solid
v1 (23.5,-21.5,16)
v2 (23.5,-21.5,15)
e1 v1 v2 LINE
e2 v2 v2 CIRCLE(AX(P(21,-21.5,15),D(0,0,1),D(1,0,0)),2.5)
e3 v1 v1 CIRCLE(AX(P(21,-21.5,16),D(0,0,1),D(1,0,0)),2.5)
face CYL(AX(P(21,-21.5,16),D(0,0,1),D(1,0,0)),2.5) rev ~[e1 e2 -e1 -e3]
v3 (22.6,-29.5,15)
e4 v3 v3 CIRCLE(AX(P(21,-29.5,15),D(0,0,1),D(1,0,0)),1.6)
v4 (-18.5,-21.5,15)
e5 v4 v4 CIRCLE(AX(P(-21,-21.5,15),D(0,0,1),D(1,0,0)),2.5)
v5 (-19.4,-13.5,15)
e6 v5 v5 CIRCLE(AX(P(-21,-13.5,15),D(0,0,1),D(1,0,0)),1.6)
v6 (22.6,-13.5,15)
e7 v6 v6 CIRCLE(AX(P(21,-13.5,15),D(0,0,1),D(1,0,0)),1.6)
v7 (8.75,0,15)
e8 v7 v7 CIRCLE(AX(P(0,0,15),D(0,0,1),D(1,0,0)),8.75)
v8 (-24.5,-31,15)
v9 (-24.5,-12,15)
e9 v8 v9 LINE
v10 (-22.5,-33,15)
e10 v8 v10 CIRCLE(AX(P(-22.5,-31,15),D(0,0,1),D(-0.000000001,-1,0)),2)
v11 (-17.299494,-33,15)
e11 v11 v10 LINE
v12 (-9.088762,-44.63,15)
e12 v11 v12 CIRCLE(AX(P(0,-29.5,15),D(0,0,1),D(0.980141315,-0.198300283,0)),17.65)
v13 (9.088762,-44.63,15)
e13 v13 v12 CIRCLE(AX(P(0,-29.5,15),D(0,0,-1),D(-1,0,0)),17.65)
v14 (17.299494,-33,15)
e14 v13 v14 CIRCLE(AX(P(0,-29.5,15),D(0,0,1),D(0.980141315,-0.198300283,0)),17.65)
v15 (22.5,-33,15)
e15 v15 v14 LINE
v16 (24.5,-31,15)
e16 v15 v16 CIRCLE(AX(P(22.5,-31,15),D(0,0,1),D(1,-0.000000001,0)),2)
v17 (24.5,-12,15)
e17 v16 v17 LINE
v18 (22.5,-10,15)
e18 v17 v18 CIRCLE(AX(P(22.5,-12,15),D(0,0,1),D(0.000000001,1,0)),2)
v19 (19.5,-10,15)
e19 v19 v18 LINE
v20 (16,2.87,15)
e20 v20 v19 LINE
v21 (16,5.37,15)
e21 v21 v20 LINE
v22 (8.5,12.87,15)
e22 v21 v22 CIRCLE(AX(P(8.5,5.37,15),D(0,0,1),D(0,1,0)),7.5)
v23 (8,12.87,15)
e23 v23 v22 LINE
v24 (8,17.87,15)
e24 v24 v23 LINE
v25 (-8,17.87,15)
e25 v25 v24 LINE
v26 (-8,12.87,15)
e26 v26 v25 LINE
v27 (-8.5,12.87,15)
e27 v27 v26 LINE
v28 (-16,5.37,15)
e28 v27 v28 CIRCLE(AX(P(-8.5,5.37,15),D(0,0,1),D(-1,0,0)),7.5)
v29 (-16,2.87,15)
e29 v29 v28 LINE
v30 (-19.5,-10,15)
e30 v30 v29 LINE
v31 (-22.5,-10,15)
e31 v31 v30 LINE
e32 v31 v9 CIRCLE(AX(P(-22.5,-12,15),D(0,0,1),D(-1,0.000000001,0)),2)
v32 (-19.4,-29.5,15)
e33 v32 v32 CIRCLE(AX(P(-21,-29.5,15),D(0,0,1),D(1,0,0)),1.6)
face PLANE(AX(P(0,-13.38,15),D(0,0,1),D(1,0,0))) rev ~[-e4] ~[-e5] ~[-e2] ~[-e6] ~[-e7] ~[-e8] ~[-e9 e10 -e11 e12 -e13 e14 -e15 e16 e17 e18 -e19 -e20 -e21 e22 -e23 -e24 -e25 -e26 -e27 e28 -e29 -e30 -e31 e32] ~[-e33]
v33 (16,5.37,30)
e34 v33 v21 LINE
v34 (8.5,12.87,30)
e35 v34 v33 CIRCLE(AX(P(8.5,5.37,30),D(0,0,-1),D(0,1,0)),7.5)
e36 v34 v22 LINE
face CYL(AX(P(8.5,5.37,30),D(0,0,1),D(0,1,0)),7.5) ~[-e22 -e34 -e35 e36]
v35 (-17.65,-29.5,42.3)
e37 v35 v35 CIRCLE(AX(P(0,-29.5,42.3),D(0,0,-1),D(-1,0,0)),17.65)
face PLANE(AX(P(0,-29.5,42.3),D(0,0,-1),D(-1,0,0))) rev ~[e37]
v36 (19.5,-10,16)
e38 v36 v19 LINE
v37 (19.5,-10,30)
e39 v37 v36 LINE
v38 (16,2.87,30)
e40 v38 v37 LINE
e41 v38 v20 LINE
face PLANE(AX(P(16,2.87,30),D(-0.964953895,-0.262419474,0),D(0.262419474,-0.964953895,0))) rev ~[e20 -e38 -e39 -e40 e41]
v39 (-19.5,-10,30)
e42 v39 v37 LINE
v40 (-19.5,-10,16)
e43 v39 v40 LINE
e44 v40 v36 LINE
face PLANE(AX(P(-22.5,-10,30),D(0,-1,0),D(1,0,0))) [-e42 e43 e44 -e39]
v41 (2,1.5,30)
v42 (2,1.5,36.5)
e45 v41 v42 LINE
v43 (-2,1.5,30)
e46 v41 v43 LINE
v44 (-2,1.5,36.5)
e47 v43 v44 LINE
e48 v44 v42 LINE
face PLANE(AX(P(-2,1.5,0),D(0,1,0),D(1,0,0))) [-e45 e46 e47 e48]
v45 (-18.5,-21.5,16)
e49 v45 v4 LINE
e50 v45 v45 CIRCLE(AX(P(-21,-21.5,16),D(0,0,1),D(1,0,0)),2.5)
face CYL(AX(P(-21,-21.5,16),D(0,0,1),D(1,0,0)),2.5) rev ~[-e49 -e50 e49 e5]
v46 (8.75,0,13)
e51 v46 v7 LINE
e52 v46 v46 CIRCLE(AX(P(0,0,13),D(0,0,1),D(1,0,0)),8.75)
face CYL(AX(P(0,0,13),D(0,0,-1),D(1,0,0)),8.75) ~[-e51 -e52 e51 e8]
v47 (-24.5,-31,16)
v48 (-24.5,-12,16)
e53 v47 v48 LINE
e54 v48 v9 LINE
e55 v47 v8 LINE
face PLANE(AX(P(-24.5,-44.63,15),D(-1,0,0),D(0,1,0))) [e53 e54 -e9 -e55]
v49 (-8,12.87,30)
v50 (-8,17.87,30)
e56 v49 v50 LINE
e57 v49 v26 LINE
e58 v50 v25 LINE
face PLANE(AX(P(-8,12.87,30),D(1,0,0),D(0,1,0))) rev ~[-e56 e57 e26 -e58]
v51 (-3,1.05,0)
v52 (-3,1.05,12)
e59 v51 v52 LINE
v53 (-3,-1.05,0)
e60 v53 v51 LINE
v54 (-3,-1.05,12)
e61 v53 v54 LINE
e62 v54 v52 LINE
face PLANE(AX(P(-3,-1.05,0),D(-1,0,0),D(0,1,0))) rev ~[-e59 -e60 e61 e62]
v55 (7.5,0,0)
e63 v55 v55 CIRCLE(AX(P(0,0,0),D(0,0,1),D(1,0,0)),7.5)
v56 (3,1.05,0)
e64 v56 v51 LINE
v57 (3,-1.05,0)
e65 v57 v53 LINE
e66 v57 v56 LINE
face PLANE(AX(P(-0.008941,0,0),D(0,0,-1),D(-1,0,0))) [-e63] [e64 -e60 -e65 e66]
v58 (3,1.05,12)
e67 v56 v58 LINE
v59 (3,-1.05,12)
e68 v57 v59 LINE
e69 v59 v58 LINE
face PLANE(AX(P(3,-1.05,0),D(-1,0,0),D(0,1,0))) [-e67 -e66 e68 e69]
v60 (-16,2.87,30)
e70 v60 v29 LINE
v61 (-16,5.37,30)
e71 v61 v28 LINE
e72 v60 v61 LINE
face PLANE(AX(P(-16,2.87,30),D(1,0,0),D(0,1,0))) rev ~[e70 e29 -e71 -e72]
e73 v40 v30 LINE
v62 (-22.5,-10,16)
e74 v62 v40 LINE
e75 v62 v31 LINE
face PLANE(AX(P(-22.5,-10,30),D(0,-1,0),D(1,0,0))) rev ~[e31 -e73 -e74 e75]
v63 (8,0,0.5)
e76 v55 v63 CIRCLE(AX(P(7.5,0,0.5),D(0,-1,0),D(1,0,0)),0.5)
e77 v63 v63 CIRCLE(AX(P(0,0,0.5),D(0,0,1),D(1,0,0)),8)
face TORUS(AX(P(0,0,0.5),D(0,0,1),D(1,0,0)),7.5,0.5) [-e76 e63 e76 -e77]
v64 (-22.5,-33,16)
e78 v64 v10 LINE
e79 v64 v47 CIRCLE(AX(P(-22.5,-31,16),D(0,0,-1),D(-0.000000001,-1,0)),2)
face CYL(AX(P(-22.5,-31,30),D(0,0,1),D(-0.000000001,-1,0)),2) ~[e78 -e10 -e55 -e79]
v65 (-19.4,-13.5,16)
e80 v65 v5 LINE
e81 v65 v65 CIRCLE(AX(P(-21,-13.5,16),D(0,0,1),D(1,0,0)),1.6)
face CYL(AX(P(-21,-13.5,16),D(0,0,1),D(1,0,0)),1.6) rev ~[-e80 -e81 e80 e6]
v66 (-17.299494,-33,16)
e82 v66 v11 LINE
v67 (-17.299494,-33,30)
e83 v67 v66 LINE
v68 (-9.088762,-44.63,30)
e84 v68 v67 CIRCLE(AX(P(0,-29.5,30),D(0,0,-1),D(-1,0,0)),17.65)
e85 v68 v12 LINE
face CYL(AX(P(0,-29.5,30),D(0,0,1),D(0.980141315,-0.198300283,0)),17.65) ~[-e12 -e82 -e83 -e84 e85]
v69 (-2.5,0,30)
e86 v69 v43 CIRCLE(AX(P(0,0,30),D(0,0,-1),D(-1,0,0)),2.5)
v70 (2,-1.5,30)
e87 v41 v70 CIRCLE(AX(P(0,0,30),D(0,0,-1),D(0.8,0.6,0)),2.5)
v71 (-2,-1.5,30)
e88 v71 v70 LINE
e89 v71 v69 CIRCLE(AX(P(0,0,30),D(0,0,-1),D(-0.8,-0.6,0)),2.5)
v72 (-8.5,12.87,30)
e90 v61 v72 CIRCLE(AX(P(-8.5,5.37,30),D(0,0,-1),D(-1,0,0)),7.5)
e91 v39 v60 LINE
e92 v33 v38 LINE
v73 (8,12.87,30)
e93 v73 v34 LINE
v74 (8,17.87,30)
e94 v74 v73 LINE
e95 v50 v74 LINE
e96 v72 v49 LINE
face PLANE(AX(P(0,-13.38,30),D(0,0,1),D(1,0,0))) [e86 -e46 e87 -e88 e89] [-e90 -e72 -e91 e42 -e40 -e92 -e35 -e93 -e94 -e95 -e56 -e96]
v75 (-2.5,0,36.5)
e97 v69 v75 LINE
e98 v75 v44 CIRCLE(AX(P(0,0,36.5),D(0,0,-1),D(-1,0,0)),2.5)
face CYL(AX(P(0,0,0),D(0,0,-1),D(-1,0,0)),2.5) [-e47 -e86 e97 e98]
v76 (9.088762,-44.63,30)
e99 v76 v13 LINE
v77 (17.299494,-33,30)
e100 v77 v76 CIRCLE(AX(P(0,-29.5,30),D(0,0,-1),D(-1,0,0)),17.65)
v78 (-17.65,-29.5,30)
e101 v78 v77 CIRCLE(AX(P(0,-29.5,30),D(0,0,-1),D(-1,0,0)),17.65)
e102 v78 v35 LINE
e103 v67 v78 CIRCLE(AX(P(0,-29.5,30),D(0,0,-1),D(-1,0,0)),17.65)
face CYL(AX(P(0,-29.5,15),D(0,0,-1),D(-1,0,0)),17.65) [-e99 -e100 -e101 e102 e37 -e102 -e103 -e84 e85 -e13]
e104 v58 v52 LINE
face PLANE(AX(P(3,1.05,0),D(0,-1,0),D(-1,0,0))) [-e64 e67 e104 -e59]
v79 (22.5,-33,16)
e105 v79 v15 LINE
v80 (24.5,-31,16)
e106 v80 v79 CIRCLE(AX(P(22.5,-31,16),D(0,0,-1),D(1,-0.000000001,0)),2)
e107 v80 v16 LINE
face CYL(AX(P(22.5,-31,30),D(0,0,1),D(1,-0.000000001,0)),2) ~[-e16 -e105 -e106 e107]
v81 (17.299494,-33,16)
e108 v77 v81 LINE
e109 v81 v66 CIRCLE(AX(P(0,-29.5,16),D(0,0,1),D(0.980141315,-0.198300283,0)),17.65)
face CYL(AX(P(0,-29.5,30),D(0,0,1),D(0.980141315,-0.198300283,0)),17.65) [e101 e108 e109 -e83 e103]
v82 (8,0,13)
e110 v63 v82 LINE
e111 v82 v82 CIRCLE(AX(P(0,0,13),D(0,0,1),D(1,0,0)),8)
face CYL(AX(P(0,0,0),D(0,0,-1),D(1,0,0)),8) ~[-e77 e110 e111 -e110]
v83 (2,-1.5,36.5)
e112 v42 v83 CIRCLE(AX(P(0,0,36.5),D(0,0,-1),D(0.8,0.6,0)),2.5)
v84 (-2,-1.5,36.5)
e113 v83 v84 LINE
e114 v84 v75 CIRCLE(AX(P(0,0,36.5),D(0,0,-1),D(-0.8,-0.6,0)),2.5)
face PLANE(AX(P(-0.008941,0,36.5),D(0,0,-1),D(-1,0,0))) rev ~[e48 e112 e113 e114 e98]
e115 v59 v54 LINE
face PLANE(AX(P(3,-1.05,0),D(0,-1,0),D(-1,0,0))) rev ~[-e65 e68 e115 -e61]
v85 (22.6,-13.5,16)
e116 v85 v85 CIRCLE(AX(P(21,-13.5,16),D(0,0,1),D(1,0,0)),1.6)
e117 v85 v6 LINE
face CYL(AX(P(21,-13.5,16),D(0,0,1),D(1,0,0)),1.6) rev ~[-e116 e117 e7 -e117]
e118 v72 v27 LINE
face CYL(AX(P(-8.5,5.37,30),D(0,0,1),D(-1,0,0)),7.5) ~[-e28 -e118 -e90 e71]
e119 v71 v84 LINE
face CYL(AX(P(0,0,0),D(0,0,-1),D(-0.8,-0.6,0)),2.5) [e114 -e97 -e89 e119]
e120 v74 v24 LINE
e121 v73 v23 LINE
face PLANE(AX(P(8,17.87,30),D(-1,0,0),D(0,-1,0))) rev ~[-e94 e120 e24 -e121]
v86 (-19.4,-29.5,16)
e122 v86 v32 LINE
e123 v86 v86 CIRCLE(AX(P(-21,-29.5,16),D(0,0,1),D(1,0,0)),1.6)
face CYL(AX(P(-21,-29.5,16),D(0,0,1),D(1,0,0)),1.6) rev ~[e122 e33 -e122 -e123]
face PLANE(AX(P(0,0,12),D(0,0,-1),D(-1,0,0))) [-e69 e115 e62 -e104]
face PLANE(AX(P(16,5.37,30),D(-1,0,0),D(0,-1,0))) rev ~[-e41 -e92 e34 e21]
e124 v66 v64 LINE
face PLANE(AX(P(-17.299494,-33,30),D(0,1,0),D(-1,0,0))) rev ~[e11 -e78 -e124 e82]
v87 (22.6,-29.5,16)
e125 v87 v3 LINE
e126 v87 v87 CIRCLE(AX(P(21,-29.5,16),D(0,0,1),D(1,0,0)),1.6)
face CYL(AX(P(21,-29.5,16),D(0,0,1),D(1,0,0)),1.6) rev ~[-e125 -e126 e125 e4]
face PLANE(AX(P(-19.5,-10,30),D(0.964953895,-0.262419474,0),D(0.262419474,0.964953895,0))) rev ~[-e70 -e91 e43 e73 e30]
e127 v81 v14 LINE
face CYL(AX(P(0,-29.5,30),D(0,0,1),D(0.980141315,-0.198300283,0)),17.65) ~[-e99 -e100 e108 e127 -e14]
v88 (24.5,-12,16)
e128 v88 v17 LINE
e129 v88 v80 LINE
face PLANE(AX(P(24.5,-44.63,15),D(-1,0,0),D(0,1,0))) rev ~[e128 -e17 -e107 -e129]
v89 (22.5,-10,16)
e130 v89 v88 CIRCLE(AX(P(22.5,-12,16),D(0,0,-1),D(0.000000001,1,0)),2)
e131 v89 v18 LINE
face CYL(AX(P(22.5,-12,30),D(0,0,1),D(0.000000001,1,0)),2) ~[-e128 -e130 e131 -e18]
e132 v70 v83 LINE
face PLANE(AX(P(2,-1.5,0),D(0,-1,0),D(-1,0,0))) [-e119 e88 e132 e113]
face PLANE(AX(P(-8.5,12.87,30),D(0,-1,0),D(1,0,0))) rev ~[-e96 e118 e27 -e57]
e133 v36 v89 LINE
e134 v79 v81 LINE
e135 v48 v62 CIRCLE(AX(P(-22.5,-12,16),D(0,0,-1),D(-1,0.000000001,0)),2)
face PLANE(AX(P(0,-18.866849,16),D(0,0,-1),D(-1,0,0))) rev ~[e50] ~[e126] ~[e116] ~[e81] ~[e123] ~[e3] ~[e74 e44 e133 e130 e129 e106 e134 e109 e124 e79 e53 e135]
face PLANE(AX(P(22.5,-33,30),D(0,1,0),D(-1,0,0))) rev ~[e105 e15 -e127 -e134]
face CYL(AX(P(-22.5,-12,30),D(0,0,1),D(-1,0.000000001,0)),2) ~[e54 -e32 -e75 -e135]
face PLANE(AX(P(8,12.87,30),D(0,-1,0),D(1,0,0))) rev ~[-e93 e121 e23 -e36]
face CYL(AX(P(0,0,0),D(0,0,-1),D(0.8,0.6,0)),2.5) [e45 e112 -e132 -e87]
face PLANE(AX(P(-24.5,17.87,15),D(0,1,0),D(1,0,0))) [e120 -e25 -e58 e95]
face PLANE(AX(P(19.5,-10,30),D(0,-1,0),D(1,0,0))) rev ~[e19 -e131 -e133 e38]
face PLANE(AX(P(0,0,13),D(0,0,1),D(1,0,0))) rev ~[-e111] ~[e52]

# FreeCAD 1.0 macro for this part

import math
import FreeCAD as App
import Part
import Sketcher
from FreeCAD import Vector


def edges_at(feature, points):
    """Names of the edges that pass closest to the given points."""
    edges = feature.Shape.Edges
    near = lambda p: min(range(len(edges)), key=lambda i: edges[i].distToShape(Part.Vertex(*p))[0])
    return sorted({f"Edge{near(p) + 1}" for p in points})

doc = App.newDocument("Part")
params = doc.addObject("Spreadsheet::Sheet", "Params")
for row, (alias, value) in enumerate([
    ("sketch1_diameter", "16 mm"),
    ("pad1_length", "13 mm"),
    ("sketch2_diameter", "17.5 mm"),
    ("pad2_length", "2 mm"),
    ("sketch3_width", "49 mm"),
    ("sketch3_height", "62.5 mm"),
    ("pad3_length", "15 mm"),
    ("sketch4_diameter", "35.3 mm"),
    ("pad4_length", "27.3 mm"),
    ("sketch5_radius", "2.5 mm"),
    ("sketch5_width", "4 mm"),
    ("pad5_length", "36.5 mm"),
    ("sketch6_radius", "2 mm"),
    ("sketch6_radius2", "7.5 mm"),
    ("sketch6_width", "16 mm"),
    ("sketch6_width2", "3 mm"),
    ("sketch6_height", "5 mm"),
    ("sketch7_radius", "2 mm"),
    ("sketch7_width", "45 mm"),
    ("sketch7_height", "19 mm"),
    ("sketch7_radius2", "17.65 mm"),
    ("pocket2_length", "14 mm"),
    ("sketch8_diameter", "5 mm"),
    ("sketch9_diameter", "3.2 mm"),
    ("fillet_radius", "0.5 mm"),
    ("sketch10_width", "6 mm"),
    ("sketch10_height", "2.1 mm"),
    ("pocket5_length", "12 mm"),
], start=1):
    params.set(f"A{row}", alias)
    params.set(f"B{row}", "=" + value)
    params.setAlias(f"B{row}", alias)

body = doc.addObject("PartDesign::Body", "Body")

# Sketch on XY plane
sketch1 = doc.addObject("Sketcher::SketchObject", "Sketch")
body.addObject(sketch1)
sketch1.AttachmentSupport = (doc.XY_Plane, [""])
sketch1.MapMode = "FlatFace"
sketch1.addGeometry(Part.Circle(Vector(0, 0, 0), Vector(0, 0, 1), 8), False)
sketch1.addConstraint(Sketcher.Constraint("Coincident", 0, 3, -1, 1))
sketch1.addConstraint(Sketcher.Constraint("Diameter", 0, 16.0))
sketch1.setExpression("Constraints[1]", "Params.sketch1_diameter")
pad1 = doc.addObject("PartDesign::Pad", "Pad")
body.addObject(pad1)
pad1.Profile = sketch1
pad1.setExpression("Length", "Params.pad1_length")

# Sketch on XY plane
sketch2 = doc.addObject("Sketcher::SketchObject", "Sketch001")
body.addObject(sketch2)
sketch2.AttachmentSupport = (doc.XY_Plane, [""])
sketch2.MapMode = "FlatFace"
sketch2.AttachmentOffset = App.Placement(Vector(0, 0, 13), App.Rotation())
sketch2.addGeometry(Part.Circle(Vector(0, 0, 0), Vector(0, 0, 1), 8.75), False)
sketch2.addConstraint(Sketcher.Constraint("Coincident", 0, 3, -1, 1))
sketch2.addConstraint(Sketcher.Constraint("Diameter", 0, 17.5))
sketch2.setExpression("Constraints[1]", "Params.sketch2_diameter")
pad2 = doc.addObject("PartDesign::Pad", "Pad001")
body.addObject(pad2)
pad2.Profile = sketch2
pad2.setExpression("Length", "Params.pad2_length")

# Sketch on XY plane
sketch3 = doc.addObject("Sketcher::SketchObject", "Sketch002")
body.addObject(sketch3)
sketch3.AttachmentSupport = (doc.XY_Plane, [""])
sketch3.MapMode = "FlatFace"
sketch3.AttachmentOffset = App.Placement(Vector(0, 0, 15), App.Rotation())
sketch3.addGeometry(Part.LineSegment(Vector(-24.5, 17.87, 0), Vector(-24.5, -44.63, 0)), False)
sketch3.addGeometry(Part.LineSegment(Vector(-24.5, -44.63, 0), Vector(24.5, -44.63, 0)), False)
sketch3.addGeometry(Part.LineSegment(Vector(24.5, -44.63, 0), Vector(24.5, 17.87, 0)), False)
sketch3.addGeometry(Part.LineSegment(Vector(24.5, 17.87, 0), Vector(-24.5, 17.87, 0)), False)
sketch3.addConstraint(Sketcher.Constraint("Coincident", 0, 2, 1, 1))
sketch3.addConstraint(Sketcher.Constraint("Coincident", 1, 2, 2, 1))
sketch3.addConstraint(Sketcher.Constraint("Coincident", 2, 2, 3, 1))
sketch3.addConstraint(Sketcher.Constraint("Coincident", 3, 2, 0, 1))
sketch3.addConstraint(Sketcher.Constraint("Vertical", 0))
sketch3.addConstraint(Sketcher.Constraint("Horizontal", 1))
sketch3.addConstraint(Sketcher.Constraint("Vertical", 2))
sketch3.addConstraint(Sketcher.Constraint("Horizontal", 3))
sketch3.addConstraint(Sketcher.Constraint("DistanceX", 1, 1, 1, 2, 49.0))
sketch3.addConstraint(Sketcher.Constraint("DistanceY", 0, 2, 0, 1, 62.5))
sketch3.addConstraint(Sketcher.Constraint("DistanceX", 0, 2, -1, 1, 24.5))
sketch3.addConstraint(Sketcher.Constraint("DistanceY", 0, 2, -1, 1, 44.63))
sketch3.setExpression("Constraints[8]", "Params.sketch3_width")
sketch3.setExpression("Constraints[9]", "Params.sketch3_height")
pad3 = doc.addObject("PartDesign::Pad", "Pad002")
body.addObject(pad3)
pad3.Profile = sketch3
pad3.setExpression("Length", "Params.pad3_length")

# Sketch on XY plane
sketch4 = doc.addObject("Sketcher::SketchObject", "Sketch003")
body.addObject(sketch4)
sketch4.AttachmentSupport = (doc.XY_Plane, [""])
sketch4.MapMode = "FlatFace"
sketch4.AttachmentOffset = App.Placement(Vector(0, 0, 15), App.Rotation())
sketch4.addGeometry(Part.Circle(Vector(0, -29.5, 0), Vector(0, 0, 1), 17.65), False)
sketch4.addConstraint(Sketcher.Constraint("PointOnObject", 0, 3, -2))
sketch4.addConstraint(Sketcher.Constraint("Diameter", 0, 35.3))
sketch4.addConstraint(Sketcher.Constraint("DistanceY", 0, 3, -1, 1, 29.5))
sketch4.setExpression("Constraints[1]", "Params.sketch4_diameter")
pad4 = doc.addObject("PartDesign::Pad", "Pad003")
body.addObject(pad4)
pad4.Profile = sketch4
pad4.setExpression("Length", "Params.pad4_length")

# Sketch on XY plane
sketch5 = doc.addObject("Sketcher::SketchObject", "Sketch004")
body.addObject(sketch5)
sketch5.AttachmentSupport = (doc.XY_Plane, [""])
sketch5.MapMode = "FlatFace"
sketch5.addGeometry(Part.LineSegment(Vector(-2, 1.5, 0), Vector(2, 1.5, 0)), False)
sketch5.addGeometry(Part.ArcOfCircle(Part.Circle(Vector(0, 0, 0), Vector(0, 0, 1), 2.5), math.radians(-36.869898), math.radians(36.869898)), False)
sketch5.addGeometry(Part.LineSegment(Vector(2, -1.5, 0), Vector(-2, -1.5, 0)), False)
sketch5.addGeometry(Part.ArcOfCircle(Part.Circle(Vector(0, 0, 0), Vector(0, 0, 1), 2.5), math.radians(-180), math.radians(-143.130102)), False)
sketch5.addGeometry(Part.ArcOfCircle(Part.Circle(Vector(0, 0, 0), Vector(0, 0, 1), 2.5), math.radians(143.130102), math.radians(180)), False)
sketch5.addConstraint(Sketcher.Constraint("Coincident", 0, 2, 1, 2))
sketch5.addConstraint(Sketcher.Constraint("Coincident", 1, 1, 2, 1))
sketch5.addConstraint(Sketcher.Constraint("Coincident", 2, 2, 3, 2))
sketch5.addConstraint(Sketcher.Constraint("Tangent", 3, 1, 4, 2))
sketch5.addConstraint(Sketcher.Constraint("Coincident", 4, 1, 0, 1))
sketch5.addConstraint(Sketcher.Constraint("Horizontal", 0))
sketch5.addConstraint(Sketcher.Constraint("Horizontal", 2))
sketch5.addConstraint(Sketcher.Constraint("Coincident", 1, 3, -1, 1))
sketch5.addConstraint(Sketcher.Constraint("Coincident", 3, 3, -1, 1))
sketch5.addConstraint(Sketcher.Constraint("Equal", 1, 3))
sketch5.addConstraint(Sketcher.Constraint("Equal", 3, 4))
sketch5.addConstraint(Sketcher.Constraint("PointOnObject", 3, 1, -1))
sketch5.addConstraint(Sketcher.Constraint("Vertical", 0, 2, 1, 1))
sketch5.addConstraint(Sketcher.Constraint("Radius", 1, 2.5))
sketch5.addConstraint(Sketcher.Constraint("DistanceX", 0, 1, 0, 2, 4.0))
sketch5.setExpression("Constraints[13]", "Params.sketch5_radius")
sketch5.setExpression("Constraints[14]", "Params.sketch5_width")
pad5 = doc.addObject("PartDesign::Pad", "Pad004")
body.addObject(pad5)
pad5.Profile = sketch5
pad5.setExpression("Length", "Params.pad5_length")

# Sketch on XY plane
sketch6 = doc.addObject("Sketcher::SketchObject", "Sketch005")
body.addObject(sketch6)
sketch6.AttachmentSupport = (doc.XY_Plane, [""])
sketch6.MapMode = "FlatFace"
sketch6.AttachmentOffset = App.Placement(Vector(0, 0, 30), App.Rotation())
sketch6.addGeometry(Part.LineSegment(Vector(-39.682326, 27.525318, 0), Vector(-39.682326, -54.935197, 0)), False)
sketch6.addGeometry(Part.LineSegment(Vector(-39.682326, -54.935197, 0), Vector(41.428388, -54.935197, 0)), False)
sketch6.addGeometry(Part.LineSegment(Vector(41.428388, -54.935197, 0), Vector(41.428388, 27.525318, 0)), False)
sketch6.addGeometry(Part.LineSegment(Vector(41.428388, 27.525318, 0), Vector(-39.682326, 27.525318, 0)), False)
sketch6.addGeometry(Part.LineSegment(Vector(-8, 12.87, 0), Vector(-8, 17.87, 0)), False)
sketch6.addGeometry(Part.LineSegment(Vector(-8, 17.87, 0), Vector(8, 17.87, 0)), False)
sketch6.addGeometry(Part.LineSegment(Vector(8, 17.87, 0), Vector(8, 12.87, 0)), False)
sketch6.addGeometry(Part.LineSegment(Vector(8, 12.87, 0), Vector(8.5, 12.87, 0)), False)
sketch6.addGeometry(Part.ArcOfCircle(Part.Circle(Vector(8.5, 5.37, 0), Vector(0, 0, 1), 7.5), math.radians(0), math.radians(90)), False)
sketch6.addGeometry(Part.LineSegment(Vector(16, 5.37, 0), Vector(16, 2.87, 0)), False)
sketch6.addGeometry(Part.LineSegment(Vector(16, 2.87, 0), Vector(19.5, -10, 0)), False)
sketch6.addGeometry(Part.LineSegment(Vector(19.5, -10, 0), Vector(22.5, -10, 0)), False)
sketch6.addGeometry(Part.ArcOfCircle(Part.Circle(Vector(22.5, -12, 0), Vector(0, 0, 1), 2), math.radians(0), math.radians(90)), False)
sketch6.addGeometry(Part.LineSegment(Vector(24.5, -12, 0), Vector(24.5, -31, 0)), False)
sketch6.addGeometry(Part.ArcOfCircle(Part.Circle(Vector(22.5, -31, 0), Vector(0, 0, 1), 2), math.radians(-90), math.radians(0)), False)
sketch6.addGeometry(Part.LineSegment(Vector(22.5, -33, 0), Vector(17.299494, -33, 0)), False)
sketch6.addGeometry(Part.ArcOfCircle(Part.Circle(Vector(0, -29.5, 0), Vector(0, 0, 1), 17.65), math.radians(-168.562418), math.radians(-11.437582)), False)
sketch6.addGeometry(Part.LineSegment(Vector(-17.299494, -33, 0), Vector(-22.5, -33, 0)), False)
sketch6.addGeometry(Part.ArcOfCircle(Part.Circle(Vector(-22.5, -31, 0), Vector(0, 0, 1), 2), math.radians(-180), math.radians(-90)), False)
sketch6.addGeometry(Part.LineSegment(Vector(-24.5, -31, 0), Vector(-24.5, -12, 0)), False)
sketch6.addGeometry(Part.ArcOfCircle(Part.Circle(Vector(-22.5, -12, 0), Vector(0, 0, 1), 2), math.radians(90), math.radians(180)), False)
sketch6.addGeometry(Part.LineSegment(Vector(-22.5, -10, 0), Vector(-19.5, -10, 0)), False)
sketch6.addGeometry(Part.LineSegment(Vector(-19.5, -10, 0), Vector(-16, 2.87, 0)), False)
sketch6.addGeometry(Part.LineSegment(Vector(-16, 2.87, 0), Vector(-16, 5.37, 0)), False)
sketch6.addGeometry(Part.ArcOfCircle(Part.Circle(Vector(-8.5, 5.37, 0), Vector(0, 0, 1), 7.5), math.radians(90), math.radians(180)), False)
sketch6.addGeometry(Part.LineSegment(Vector(-8.5, 12.87, 0), Vector(-8, 12.87, 0)), False)
sketch6.addConstraint(Sketcher.Constraint("Coincident", 0, 2, 1, 1))
sketch6.addConstraint(Sketcher.Constraint("Coincident", 1, 2, 2, 1))
sketch6.addConstraint(Sketcher.Constraint("Coincident", 2, 2, 3, 1))
sketch6.addConstraint(Sketcher.Constraint("Coincident", 3, 2, 0, 1))
sketch6.addConstraint(Sketcher.Constraint("Coincident", 4, 2, 5, 1))
sketch6.addConstraint(Sketcher.Constraint("Coincident", 5, 2, 6, 1))
sketch6.addConstraint(Sketcher.Constraint("Coincident", 6, 2, 7, 1))
sketch6.addConstraint(Sketcher.Constraint("Tangent", 7, 2, 8, 2))
sketch6.addConstraint(Sketcher.Constraint("Tangent", 8, 1, 9, 1))
sketch6.addConstraint(Sketcher.Constraint("Coincident", 9, 2, 10, 1))
sketch6.addConstraint(Sketcher.Constraint("Coincident", 10, 2, 11, 1))
sketch6.addConstraint(Sketcher.Constraint("Tangent", 11, 2, 12, 2))
sketch6.addConstraint(Sketcher.Constraint("Tangent", 12, 1, 13, 1))
sketch6.addConstraint(Sketcher.Constraint("Tangent", 13, 2, 14, 2))
sketch6.addConstraint(Sketcher.Constraint("Tangent", 14, 1, 15, 1))
sketch6.addConstraint(Sketcher.Constraint("Coincident", 15, 2, 16, 2))
sketch6.addConstraint(Sketcher.Constraint("Coincident", 16, 1, 17, 1))
sketch6.addConstraint(Sketcher.Constraint("Tangent", 17, 2, 18, 2))
sketch6.addConstraint(Sketcher.Constraint("Tangent", 18, 1, 19, 1))
sketch6.addConstraint(Sketcher.Constraint("Tangent", 19, 2, 20, 2))
sketch6.addConstraint(Sketcher.Constraint("Tangent", 20, 1, 21, 1))
sketch6.addConstraint(Sketcher.Constraint("Coincident", 21, 2, 22, 1))
sketch6.addConstraint(Sketcher.Constraint("Coincident", 22, 2, 23, 1))
sketch6.addConstraint(Sketcher.Constraint("Tangent", 23, 2, 24, 2))
sketch6.addConstraint(Sketcher.Constraint("Tangent", 24, 1, 25, 1))
sketch6.addConstraint(Sketcher.Constraint("Coincident", 25, 2, 4, 1))
sketch6.addConstraint(Sketcher.Constraint("Vertical", 0))
sketch6.addConstraint(Sketcher.Constraint("Horizontal", 1))
sketch6.addConstraint(Sketcher.Constraint("Vertical", 2))
sketch6.addConstraint(Sketcher.Constraint("Horizontal", 3))
sketch6.addConstraint(Sketcher.Constraint("Vertical", 4))
sketch6.addConstraint(Sketcher.Constraint("Horizontal", 5))
sketch6.addConstraint(Sketcher.Constraint("Vertical", 6))
sketch6.addConstraint(Sketcher.Constraint("Horizontal", 7))
sketch6.addConstraint(Sketcher.Constraint("Vertical", 9))
sketch6.addConstraint(Sketcher.Constraint("Horizontal", 11))
sketch6.addConstraint(Sketcher.Constraint("Vertical", 13))
sketch6.addConstraint(Sketcher.Constraint("Horizontal", 15))
sketch6.addConstraint(Sketcher.Constraint("Horizontal", 17))
sketch6.addConstraint(Sketcher.Constraint("Vertical", 19))
sketch6.addConstraint(Sketcher.Constraint("Horizontal", 21))
sketch6.addConstraint(Sketcher.Constraint("Vertical", 23))
sketch6.addConstraint(Sketcher.Constraint("Horizontal", 25))
sketch6.addConstraint(Sketcher.Constraint("Equal", 12, 14))
sketch6.addConstraint(Sketcher.Constraint("Equal", 14, 18))
sketch6.addConstraint(Sketcher.Constraint("Equal", 18, 20))
sketch6.addConstraint(Sketcher.Constraint("Equal", 8, 24))
sketch6.addConstraint(Sketcher.Constraint("Symmetric", 14, 3, 18, 3, -2))
sketch6.addConstraint(Sketcher.Constraint("Symmetric", 8, 3, 24, 3, -2))
sketch6.addConstraint(Sketcher.Constraint("Symmetric", 10, 2, 21, 2, -2))
sketch6.addConstraint(Sketcher.Constraint("PointOnObject", 16, 3, -2))
sketch6.addConstraint(Sketcher.Constraint("Horizontal", 9, 2, 22, 2))
sketch6.addConstraint(Sketcher.Constraint("Equal", 7, 25))
sketch6.addConstraint(Sketcher.Constraint("Radius", 12, 2.0))
sketch6.addConstraint(Sketcher.Constraint("Radius", 8, 7.5))
sketch6.addConstraint(Sketcher.Constraint("DistanceX", 5, 1, 5, 2, 16.0))
sketch6.addConstraint(Sketcher.Constraint("DistanceX", 11, 1, 11, 2, 3.0))
sketch6.addConstraint(Sketcher.Constraint("DistanceY", 4, 1, 4, 2, 5.0))
sketch6.addConstraint(Sketcher.Constraint("DistanceY", 13, 2, 13, 1, 19.0))
sketch6.addConstraint(Sketcher.Constraint("Radius", 16, 17.65))
sketch6.addConstraint(Sketcher.Constraint("DistanceX", 7, 1, 7, 2, 0.5))
sketch6.addConstraint(Sketcher.Constraint("DistanceY", 9, 2, 9, 1, 2.5))
sketch6.addConstraint(Sketcher.Constraint("DistanceY", 12, 3, -1, 1, 12.0))
sketch6.addConstraint(Sketcher.Constraint("DistanceX", 8, 3, 12, 3, 14.0))
sketch6.addConstraint(Sketcher.Constraint("DistanceY", 16, 3, -1, 1, 29.5))
sketch6.addConstraint(Sketcher.Constraint("DistanceY", -1, 1, 8, 3, 5.37))
sketch6.addConstraint(Sketcher.Constraint("DistanceX", 1, 1, 1, 2, 81.110714))
sketch6.addConstraint(Sketcher.Constraint("DistanceY", 0, 2, 0, 1, 82.460514))
sketch6.addConstraint(Sketcher.Constraint("DistanceX", 0, 2, -1, 1, 39.682326))
sketch6.addConstraint(Sketcher.Constraint("DistanceY", 0, 2, -1, 1, 54.935197))
sketch6.setExpression("Constraints[53]", "Params.sketch6_radius")
sketch6.setExpression("Constraints[54]", "Params.sketch6_radius2")
sketch6.setExpression("Constraints[55]", "Params.sketch6_width")
sketch6.setExpression("Constraints[56]", "Params.sketch6_width2")
sketch6.setExpression("Constraints[57]", "Params.sketch6_height")
pocket1 = doc.addObject("PartDesign::Pocket", "Pocket")
body.addObject(pocket1)
pocket1.Profile = sketch6
pocket1.Type = "ThroughAll"

# Sketch on XY plane
sketch7 = doc.addObject("Sketcher::SketchObject", "Sketch006")
body.addObject(sketch7)
sketch7.AttachmentSupport = (doc.XY_Plane, [""])
sketch7.MapMode = "FlatFace"
sketch7.AttachmentOffset = App.Placement(Vector(0, 0, 30), App.Rotation())
sketch7.addGeometry(Part.LineSegment(Vector(-22.5, -33, 0), Vector(-17.299494, -33, 0)), False)
sketch7.addGeometry(Part.ArcOfCircle(Part.Circle(Vector(0, -29.5, 0), Vector(0, 0, 1), 17.65), math.radians(-11.437582), math.radians(191.437582)), False)
sketch7.addGeometry(Part.LineSegment(Vector(17.299494, -33, 0), Vector(22.5, -33, 0)), False)
sketch7.addGeometry(Part.ArcOfCircle(Part.Circle(Vector(22.5, -31, 0), Vector(0, 0, 1), 2), math.radians(-90), math.radians(0)), False)
sketch7.addGeometry(Part.LineSegment(Vector(24.5, -31, 0), Vector(24.5, -12, 0)), False)
sketch7.addGeometry(Part.ArcOfCircle(Part.Circle(Vector(22.5, -12, 0), Vector(0, 0, 1), 2), math.radians(0), math.radians(90)), False)
sketch7.addGeometry(Part.LineSegment(Vector(22.5, -10, 0), Vector(-22.5, -10, 0)), False)
sketch7.addGeometry(Part.ArcOfCircle(Part.Circle(Vector(-22.5, -12, 0), Vector(0, 0, 1), 2), math.radians(90), math.radians(180)), False)
sketch7.addGeometry(Part.LineSegment(Vector(-24.5, -12, 0), Vector(-24.5, -31, 0)), False)
sketch7.addGeometry(Part.ArcOfCircle(Part.Circle(Vector(-22.5, -31, 0), Vector(0, 0, 1), 2), math.radians(-180), math.radians(-90)), False)
sketch7.addConstraint(Sketcher.Constraint("Coincident", 0, 2, 1, 2))
sketch7.addConstraint(Sketcher.Constraint("Coincident", 1, 1, 2, 1))
sketch7.addConstraint(Sketcher.Constraint("Tangent", 2, 2, 3, 1))
sketch7.addConstraint(Sketcher.Constraint("Tangent", 3, 2, 4, 1))
sketch7.addConstraint(Sketcher.Constraint("Tangent", 4, 2, 5, 1))
sketch7.addConstraint(Sketcher.Constraint("Tangent", 5, 2, 6, 1))
sketch7.addConstraint(Sketcher.Constraint("Tangent", 6, 2, 7, 1))
sketch7.addConstraint(Sketcher.Constraint("Tangent", 7, 2, 8, 1))
sketch7.addConstraint(Sketcher.Constraint("Tangent", 8, 2, 9, 1))
sketch7.addConstraint(Sketcher.Constraint("Tangent", 9, 2, 0, 1))
sketch7.addConstraint(Sketcher.Constraint("Horizontal", 0))
sketch7.addConstraint(Sketcher.Constraint("Horizontal", 2))
sketch7.addConstraint(Sketcher.Constraint("Vertical", 4))
sketch7.addConstraint(Sketcher.Constraint("Horizontal", 6))
sketch7.addConstraint(Sketcher.Constraint("Vertical", 8))
sketch7.addConstraint(Sketcher.Constraint("Equal", 3, 5))
sketch7.addConstraint(Sketcher.Constraint("Equal", 5, 7))
sketch7.addConstraint(Sketcher.Constraint("Equal", 7, 9))
sketch7.addConstraint(Sketcher.Constraint("Symmetric", 3, 3, 9, 3, -2))
sketch7.addConstraint(Sketcher.Constraint("PointOnObject", 1, 3, -2))
sketch7.addConstraint(Sketcher.Constraint("Radius", 3, 2.0))
sketch7.addConstraint(Sketcher.Constraint("DistanceX", 6, 2, 6, 1, 45.0))
sketch7.addConstraint(Sketcher.Constraint("DistanceY", 4, 1, 4, 2, 19.0))
sketch7.addConstraint(Sketcher.Constraint("Radius", 1, 17.65))
sketch7.addConstraint(Sketcher.Constraint("DistanceY", 3, 3, -1, 1, 31.0))
sketch7.addConstraint(Sketcher.Constraint("DistanceY", 1, 3, -1, 1, 29.5))
sketch7.setExpression("Constraints[20]", "Params.sketch7_radius")
sketch7.setExpression("Constraints[21]", "Params.sketch7_width")
sketch7.setExpression("Constraints[22]", "Params.sketch7_height")
sketch7.setExpression("Constraints[23]", "Params.sketch7_radius2")
pocket2 = doc.addObject("PartDesign::Pocket", "Pocket001")
body.addObject(pocket2)
pocket2.Profile = sketch7
pocket2.setExpression("Length", "Params.pocket2_length")

# Sketch on XY plane
sketch8 = doc.addObject("Sketcher::SketchObject", "Sketch007")
body.addObject(sketch8)
sketch8.AttachmentSupport = (doc.XY_Plane, [""])
sketch8.MapMode = "FlatFace"
sketch8.AttachmentOffset = App.Placement(Vector(0, 0, 16), App.Rotation())
sketch8.addGeometry(Part.Circle(Vector(-21, -21.5, 0), Vector(0, 0, 1), 2.5), False)
sketch8.addGeometry(Part.Circle(Vector(21, -21.5, 0), Vector(0, 0, 1), 2.5), False)
sketch8.addConstraint(Sketcher.Constraint("Equal", 0, 1))
sketch8.addConstraint(Sketcher.Constraint("Symmetric", 0, 3, 1, 3, -2))
sketch8.addConstraint(Sketcher.Constraint("Diameter", 0, 5.0))
sketch8.addConstraint(Sketcher.Constraint("DistanceX", 0, 3, -1, 1, 21.0))
sketch8.addConstraint(Sketcher.Constraint("DistanceY", 0, 3, -1, 1, 21.5))
sketch8.setExpression("Constraints[2]", "Params.sketch8_diameter")
pocket3 = doc.addObject("PartDesign::Pocket", "Pocket002")
body.addObject(pocket3)
pocket3.Profile = sketch8
pocket3.Type = "ThroughAll"

# Sketch on XY plane
sketch9 = doc.addObject("Sketcher::SketchObject", "Sketch008")
body.addObject(sketch9)
sketch9.AttachmentSupport = (doc.XY_Plane, [""])
sketch9.MapMode = "FlatFace"
sketch9.AttachmentOffset = App.Placement(Vector(0, 0, 16), App.Rotation())
sketch9.addGeometry(Part.Circle(Vector(-21, -13.5, 0), Vector(0, 0, 1), 1.6), False)
sketch9.addGeometry(Part.Circle(Vector(21, -13.5, 0), Vector(0, 0, 1), 1.6), False)
sketch9.addGeometry(Part.Circle(Vector(21, -29.5, 0), Vector(0, 0, 1), 1.6), False)
sketch9.addGeometry(Part.Circle(Vector(-21, -29.5, 0), Vector(0, 0, 1), 1.6), False)
sketch9.addConstraint(Sketcher.Constraint("Equal", 0, 1))
sketch9.addConstraint(Sketcher.Constraint("Equal", 1, 2))
sketch9.addConstraint(Sketcher.Constraint("Equal", 2, 3))
sketch9.addConstraint(Sketcher.Constraint("Symmetric", 0, 3, 1, 3, -2))
sketch9.addConstraint(Sketcher.Constraint("Symmetric", 2, 3, 3, 3, -2))
sketch9.addConstraint(Sketcher.Constraint("Vertical", 1, 3, 2, 3))
sketch9.addConstraint(Sketcher.Constraint("Diameter", 0, 3.2))
sketch9.addConstraint(Sketcher.Constraint("DistanceX", 0, 3, -1, 1, 21.0))
sketch9.addConstraint(Sketcher.Constraint("DistanceY", 2, 3, 1, 3, 16.0))
sketch9.addConstraint(Sketcher.Constraint("DistanceY", 0, 3, -1, 1, 13.5))
sketch9.setExpression("Constraints[6]", "Params.sketch9_diameter")
pocket4 = doc.addObject("PartDesign::Pocket", "Pocket003")
body.addObject(pocket4)
pocket4.Profile = sketch9
pocket4.Type = "ThroughAll"
doc.recompute()

fillet = doc.addObject("PartDesign::Fillet", "Fillet")
body.addObject(fillet)
fillet.Base = (pocket4, edges_at(pocket4, [(-8, 0, 0)]))
fillet.setExpression("Radius", "Params.fillet_radius")

# Sketch on XY plane
sketch10 = doc.addObject("Sketcher::SketchObject", "Sketch009")
body.addObject(sketch10)
sketch10.AttachmentSupport = (doc.XY_Plane, [""])
sketch10.MapMode = "FlatFace"
sketch10.addGeometry(Part.LineSegment(Vector(3, 1.05, 0), Vector(3, -1.05, 0)), False)
sketch10.addGeometry(Part.LineSegment(Vector(3, -1.05, 0), Vector(-3, -1.05, 0)), False)
sketch10.addGeometry(Part.LineSegment(Vector(-3, -1.05, 0), Vector(-3, 1.05, 0)), False)
sketch10.addGeometry(Part.LineSegment(Vector(-3, 1.05, 0), Vector(3, 1.05, 0)), False)
sketch10.addConstraint(Sketcher.Constraint("Coincident", 0, 2, 1, 1))
sketch10.addConstraint(Sketcher.Constraint("Coincident", 1, 2, 2, 1))
sketch10.addConstraint(Sketcher.Constraint("Coincident", 2, 2, 3, 1))
sketch10.addConstraint(Sketcher.Constraint("Coincident", 3, 2, 0, 1))
sketch10.addConstraint(Sketcher.Constraint("Vertical", 0))
sketch10.addConstraint(Sketcher.Constraint("Horizontal", 1))
sketch10.addConstraint(Sketcher.Constraint("Vertical", 2))
sketch10.addConstraint(Sketcher.Constraint("Horizontal", 3))
sketch10.addConstraint(Sketcher.Constraint("Symmetric", 0, 2, 2, 2, -1, 1))
sketch10.addConstraint(Sketcher.Constraint("DistanceX", 1, 2, 1, 1, 6.0))
sketch10.addConstraint(Sketcher.Constraint("DistanceY", 0, 2, 0, 1, 2.1))
sketch10.setExpression("Constraints[9]", "Params.sketch10_width")
sketch10.setExpression("Constraints[10]", "Params.sketch10_height")
pocket5 = doc.addObject("PartDesign::Pocket", "Pocket004")
body.addObject(pocket5)
pocket5.Profile = sketch10
pocket5.setExpression("Length", "Params.pocket5_length")
pocket5.Reversed = True

doc.recompute()
